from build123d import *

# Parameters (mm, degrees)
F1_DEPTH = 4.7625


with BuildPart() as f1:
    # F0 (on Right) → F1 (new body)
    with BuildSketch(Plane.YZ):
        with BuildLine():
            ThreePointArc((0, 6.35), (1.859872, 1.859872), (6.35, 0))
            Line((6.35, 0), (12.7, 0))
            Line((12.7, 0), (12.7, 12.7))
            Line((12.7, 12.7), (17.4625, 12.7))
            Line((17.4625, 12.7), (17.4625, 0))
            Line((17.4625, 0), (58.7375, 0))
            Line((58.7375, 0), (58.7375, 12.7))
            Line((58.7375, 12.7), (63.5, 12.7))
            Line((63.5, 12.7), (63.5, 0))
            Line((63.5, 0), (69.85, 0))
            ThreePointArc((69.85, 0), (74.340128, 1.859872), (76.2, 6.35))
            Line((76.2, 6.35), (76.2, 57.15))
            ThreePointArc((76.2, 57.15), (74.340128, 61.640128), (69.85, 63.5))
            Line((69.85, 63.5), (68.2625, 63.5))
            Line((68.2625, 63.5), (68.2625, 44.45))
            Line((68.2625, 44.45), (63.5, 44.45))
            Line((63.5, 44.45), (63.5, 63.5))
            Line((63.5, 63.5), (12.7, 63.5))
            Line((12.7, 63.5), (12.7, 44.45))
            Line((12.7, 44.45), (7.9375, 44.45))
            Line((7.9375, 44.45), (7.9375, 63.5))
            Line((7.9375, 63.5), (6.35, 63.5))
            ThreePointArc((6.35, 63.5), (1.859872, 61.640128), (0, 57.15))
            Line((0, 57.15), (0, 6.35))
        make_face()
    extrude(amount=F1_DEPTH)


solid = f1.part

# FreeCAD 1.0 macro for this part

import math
import FreeCAD as App
import Part
import Sketcher
from FreeCAD import Vector
Q = App.Units.Quantity

doc = App.newDocument("Part")
body = doc.addObject("PartDesign::Body", "Body")

sketch1 = body.newObject("Sketcher::SketchObject", "Sketch")
sketch1.AttachmentSupport = (doc.getObject("YZ_Plane"), [""])
sketch1.MapMode = "FlatFace"
sketch1.addGeometry([
    Part.ArcOfCircle(Part.Circle(Vector(6.4, 6.4, 0), Vector(0, 0, 1), 6.4), math.radians(-180), math.radians(-90)),
    Part.LineSegment(Vector(6.3, 0, 0), Vector(12.7, 0, 0)),
    Part.LineSegment(Vector(12.7, 0, 0), Vector(12.7, 12.7, 0)),
    Part.LineSegment(Vector(12.7, 12.7, 0), Vector(17.5, 12.7, 0)),
    Part.LineSegment(Vector(17.5, 12.7, 0), Vector(17.5, 0, 0)),
    Part.LineSegment(Vector(17.5, 0, 0), Vector(58.7, 0, 0)),
    Part.LineSegment(Vector(58.7, 0, 0), Vector(58.7, 12.7, 0)),
    Part.LineSegment(Vector(58.7, 12.7, 0), Vector(63.5, 12.7, 0)),
    Part.LineSegment(Vector(63.5, 12.7, 0), Vector(63.5, 0, 0)),
    Part.LineSegment(Vector(63.5, 0, 0), Vector(69.8, 0, 0)),
    Part.ArcOfCircle(Part.Circle(Vector(69.8, 6.4, 0), Vector(0, 0, 1), 6.4), math.radians(-90), math.radians(0)),
    Part.LineSegment(Vector(76.2, 6.3, 0), Vector(76.2, 57.1, 0)),
    Part.ArcOfCircle(Part.Circle(Vector(69.8, 57.1, 0), Vector(0, 0, 1), 6.4), math.radians(0), math.radians(90)),
    Part.LineSegment(Vector(69.8, 63.5, 0), Vector(68.3, 63.5, 0)),
    Part.LineSegment(Vector(68.3, 63.5, 0), Vector(68.3, 44.5, 0)),
    Part.LineSegment(Vector(68.3, 44.5, 0), Vector(63.5, 44.5, 0)),
    Part.LineSegment(Vector(63.5, 44.5, 0), Vector(63.5, 63.5, 0)),
    Part.LineSegment(Vector(63.5, 63.5, 0), Vector(12.7, 63.5, 0)),
    Part.LineSegment(Vector(12.7, 63.5, 0), Vector(12.7, 44.5, 0)),
    Part.LineSegment(Vector(12.7, 44.5, 0), Vector(7.9, 44.5, 0)),
    Part.LineSegment(Vector(7.9, 44.5, 0), Vector(7.9, 63.5, 0)),
    Part.LineSegment(Vector(7.9, 63.5, 0), Vector(6.3, 63.5, 0)),
    Part.ArcOfCircle(Part.Circle(Vector(6.4, 57.1, 0), Vector(0, 0, 1), 6.4), math.radians(90), math.radians(180)),
    Part.LineSegment(Vector(0, 57.1, 0), Vector(0, 6.3, 0)),
], False)
sketch1.addConstraint([
    Sketcher.Constraint("Tangent", 0, 2, 1, 1),
    Sketcher.Constraint("Coincident", 1, 2, 2, 1),
    Sketcher.Constraint("Coincident", 2, 2, 3, 1),
    Sketcher.Constraint("Coincident", 3, 2, 4, 1),
    Sketcher.Constraint("Coincident", 4, 2, 5, 1),
    Sketcher.Constraint("Coincident", 5, 2, 6, 1),
    Sketcher.Constraint("Coincident", 6, 2, 7, 1),
    Sketcher.Constraint("Coincident", 7, 2, 8, 1),
    Sketcher.Constraint("Coincident", 8, 2, 9, 1),
    Sketcher.Constraint("Tangent", 9, 2, 10, 1),
    Sketcher.Constraint("Tangent", 10, 2, 11, 1),
    Sketcher.Constraint("Tangent", 11, 2, 12, 1),
    Sketcher.Constraint("Tangent", 12, 2, 13, 1),
    Sketcher.Constraint("Coincident", 13, 2, 14, 1),
    Sketcher.Constraint("Coincident", 14, 2, 15, 1),
    Sketcher.Constraint("Coincident", 15, 2, 16, 1),
    Sketcher.Constraint("Coincident", 16, 2, 17, 1),
    Sketcher.Constraint("Coincident", 17, 2, 18, 1),
    Sketcher.Constraint("Coincident", 18, 2, 19, 1),
    Sketcher.Constraint("Coincident", 19, 2, 20, 1),
    Sketcher.Constraint("Coincident", 20, 2, 21, 1),
    Sketcher.Constraint("Tangent", 21, 2, 22, 1),
    Sketcher.Constraint("Tangent", 22, 2, 23, 1),
    Sketcher.Constraint("Tangent", 23, 2, 0, 1),
    Sketcher.Constraint("Horizontal", 1),
    Sketcher.Constraint("Vertical", 2),
    Sketcher.Constraint("Horizontal", 3),
    Sketcher.Constraint("Vertical", 4),
    Sketcher.Constraint("Horizontal", 5),
    Sketcher.Constraint("Vertical", 6),
    Sketcher.Constraint("Horizontal", 7),
    Sketcher.Constraint("Vertical", 8),
    Sketcher.Constraint("Horizontal", 9),
    Sketcher.Constraint("Vertical", 11),
    Sketcher.Constraint("Horizontal", 13),
    Sketcher.Constraint("Vertical", 14),
    Sketcher.Constraint("Horizontal", 15),
    Sketcher.Constraint("Vertical", 16),
    Sketcher.Constraint("Horizontal", 17),
    Sketcher.Constraint("Vertical", 18),
    Sketcher.Constraint("Horizontal", 19),
    Sketcher.Constraint("Vertical", 20),
    Sketcher.Constraint("Horizontal", 21),
    Sketcher.Constraint("Vertical", 23),
    Sketcher.Constraint("Equal", 0, 10),
    Sketcher.Constraint("Equal", 10, 12),
    Sketcher.Constraint("Equal", 12, 22),
    Sketcher.Constraint("PointOnObject", 0, 2, -1),
    Sketcher.Constraint("PointOnObject", 4, 2, -1),
    Sketcher.Constraint("PointOnObject", 8, 2, -1),
    Sketcher.Constraint("PointOnObject", 22, 2, -2),
    Sketcher.Constraint("Horizontal", 12, 3, 22, 3),
    Sketcher.Constraint("Horizontal", 3, 2, 6, 2),
    Sketcher.Constraint("Horizontal", 13, 2, 16, 2),
    Sketcher.Constraint("Horizontal", 15, 2, 18, 2),
    Sketcher.Constraint("Vertical", 8, 2, 15, 2),
    Sketcher.Constraint("Vertical", 2, 2, 17, 2),
    Sketcher.Constraint("Equal", 3, 7),
    Sketcher.Constraint("Equal", 1, 9),
    Sketcher.Constraint("Equal", 7, 15),
    Sketcher.Constraint("Equal", 15, 19),
    Sketcher.Constraint("Equal", 17, 11),
    Sketcher.Constraint("DistanceX", 17, 2, 17, 1, Q("2 in")),
    Sketcher.Constraint("Radius", 0, Q("0.25 in")),
    Sketcher.Constraint("DistanceY", 2, 1, 2, 2, Q("0.5 in")),
    Sketcher.Constraint("DistanceX", -1, 1, 10, 2, Q("3 in")),
    Sketcher.Constraint("DistanceY", 14, 2, 14, 1, Q("0.75 in")),
    Sketcher.Constraint("DistanceX", 3, 1, 3, 2, Q("0.1875 in")),
])
pad1 = body.newObject("PartDesign::Pad", "Pad")
pad1.Profile = sketch1
pad1.Length = Q("0.1875 in")

doc.recompute()
